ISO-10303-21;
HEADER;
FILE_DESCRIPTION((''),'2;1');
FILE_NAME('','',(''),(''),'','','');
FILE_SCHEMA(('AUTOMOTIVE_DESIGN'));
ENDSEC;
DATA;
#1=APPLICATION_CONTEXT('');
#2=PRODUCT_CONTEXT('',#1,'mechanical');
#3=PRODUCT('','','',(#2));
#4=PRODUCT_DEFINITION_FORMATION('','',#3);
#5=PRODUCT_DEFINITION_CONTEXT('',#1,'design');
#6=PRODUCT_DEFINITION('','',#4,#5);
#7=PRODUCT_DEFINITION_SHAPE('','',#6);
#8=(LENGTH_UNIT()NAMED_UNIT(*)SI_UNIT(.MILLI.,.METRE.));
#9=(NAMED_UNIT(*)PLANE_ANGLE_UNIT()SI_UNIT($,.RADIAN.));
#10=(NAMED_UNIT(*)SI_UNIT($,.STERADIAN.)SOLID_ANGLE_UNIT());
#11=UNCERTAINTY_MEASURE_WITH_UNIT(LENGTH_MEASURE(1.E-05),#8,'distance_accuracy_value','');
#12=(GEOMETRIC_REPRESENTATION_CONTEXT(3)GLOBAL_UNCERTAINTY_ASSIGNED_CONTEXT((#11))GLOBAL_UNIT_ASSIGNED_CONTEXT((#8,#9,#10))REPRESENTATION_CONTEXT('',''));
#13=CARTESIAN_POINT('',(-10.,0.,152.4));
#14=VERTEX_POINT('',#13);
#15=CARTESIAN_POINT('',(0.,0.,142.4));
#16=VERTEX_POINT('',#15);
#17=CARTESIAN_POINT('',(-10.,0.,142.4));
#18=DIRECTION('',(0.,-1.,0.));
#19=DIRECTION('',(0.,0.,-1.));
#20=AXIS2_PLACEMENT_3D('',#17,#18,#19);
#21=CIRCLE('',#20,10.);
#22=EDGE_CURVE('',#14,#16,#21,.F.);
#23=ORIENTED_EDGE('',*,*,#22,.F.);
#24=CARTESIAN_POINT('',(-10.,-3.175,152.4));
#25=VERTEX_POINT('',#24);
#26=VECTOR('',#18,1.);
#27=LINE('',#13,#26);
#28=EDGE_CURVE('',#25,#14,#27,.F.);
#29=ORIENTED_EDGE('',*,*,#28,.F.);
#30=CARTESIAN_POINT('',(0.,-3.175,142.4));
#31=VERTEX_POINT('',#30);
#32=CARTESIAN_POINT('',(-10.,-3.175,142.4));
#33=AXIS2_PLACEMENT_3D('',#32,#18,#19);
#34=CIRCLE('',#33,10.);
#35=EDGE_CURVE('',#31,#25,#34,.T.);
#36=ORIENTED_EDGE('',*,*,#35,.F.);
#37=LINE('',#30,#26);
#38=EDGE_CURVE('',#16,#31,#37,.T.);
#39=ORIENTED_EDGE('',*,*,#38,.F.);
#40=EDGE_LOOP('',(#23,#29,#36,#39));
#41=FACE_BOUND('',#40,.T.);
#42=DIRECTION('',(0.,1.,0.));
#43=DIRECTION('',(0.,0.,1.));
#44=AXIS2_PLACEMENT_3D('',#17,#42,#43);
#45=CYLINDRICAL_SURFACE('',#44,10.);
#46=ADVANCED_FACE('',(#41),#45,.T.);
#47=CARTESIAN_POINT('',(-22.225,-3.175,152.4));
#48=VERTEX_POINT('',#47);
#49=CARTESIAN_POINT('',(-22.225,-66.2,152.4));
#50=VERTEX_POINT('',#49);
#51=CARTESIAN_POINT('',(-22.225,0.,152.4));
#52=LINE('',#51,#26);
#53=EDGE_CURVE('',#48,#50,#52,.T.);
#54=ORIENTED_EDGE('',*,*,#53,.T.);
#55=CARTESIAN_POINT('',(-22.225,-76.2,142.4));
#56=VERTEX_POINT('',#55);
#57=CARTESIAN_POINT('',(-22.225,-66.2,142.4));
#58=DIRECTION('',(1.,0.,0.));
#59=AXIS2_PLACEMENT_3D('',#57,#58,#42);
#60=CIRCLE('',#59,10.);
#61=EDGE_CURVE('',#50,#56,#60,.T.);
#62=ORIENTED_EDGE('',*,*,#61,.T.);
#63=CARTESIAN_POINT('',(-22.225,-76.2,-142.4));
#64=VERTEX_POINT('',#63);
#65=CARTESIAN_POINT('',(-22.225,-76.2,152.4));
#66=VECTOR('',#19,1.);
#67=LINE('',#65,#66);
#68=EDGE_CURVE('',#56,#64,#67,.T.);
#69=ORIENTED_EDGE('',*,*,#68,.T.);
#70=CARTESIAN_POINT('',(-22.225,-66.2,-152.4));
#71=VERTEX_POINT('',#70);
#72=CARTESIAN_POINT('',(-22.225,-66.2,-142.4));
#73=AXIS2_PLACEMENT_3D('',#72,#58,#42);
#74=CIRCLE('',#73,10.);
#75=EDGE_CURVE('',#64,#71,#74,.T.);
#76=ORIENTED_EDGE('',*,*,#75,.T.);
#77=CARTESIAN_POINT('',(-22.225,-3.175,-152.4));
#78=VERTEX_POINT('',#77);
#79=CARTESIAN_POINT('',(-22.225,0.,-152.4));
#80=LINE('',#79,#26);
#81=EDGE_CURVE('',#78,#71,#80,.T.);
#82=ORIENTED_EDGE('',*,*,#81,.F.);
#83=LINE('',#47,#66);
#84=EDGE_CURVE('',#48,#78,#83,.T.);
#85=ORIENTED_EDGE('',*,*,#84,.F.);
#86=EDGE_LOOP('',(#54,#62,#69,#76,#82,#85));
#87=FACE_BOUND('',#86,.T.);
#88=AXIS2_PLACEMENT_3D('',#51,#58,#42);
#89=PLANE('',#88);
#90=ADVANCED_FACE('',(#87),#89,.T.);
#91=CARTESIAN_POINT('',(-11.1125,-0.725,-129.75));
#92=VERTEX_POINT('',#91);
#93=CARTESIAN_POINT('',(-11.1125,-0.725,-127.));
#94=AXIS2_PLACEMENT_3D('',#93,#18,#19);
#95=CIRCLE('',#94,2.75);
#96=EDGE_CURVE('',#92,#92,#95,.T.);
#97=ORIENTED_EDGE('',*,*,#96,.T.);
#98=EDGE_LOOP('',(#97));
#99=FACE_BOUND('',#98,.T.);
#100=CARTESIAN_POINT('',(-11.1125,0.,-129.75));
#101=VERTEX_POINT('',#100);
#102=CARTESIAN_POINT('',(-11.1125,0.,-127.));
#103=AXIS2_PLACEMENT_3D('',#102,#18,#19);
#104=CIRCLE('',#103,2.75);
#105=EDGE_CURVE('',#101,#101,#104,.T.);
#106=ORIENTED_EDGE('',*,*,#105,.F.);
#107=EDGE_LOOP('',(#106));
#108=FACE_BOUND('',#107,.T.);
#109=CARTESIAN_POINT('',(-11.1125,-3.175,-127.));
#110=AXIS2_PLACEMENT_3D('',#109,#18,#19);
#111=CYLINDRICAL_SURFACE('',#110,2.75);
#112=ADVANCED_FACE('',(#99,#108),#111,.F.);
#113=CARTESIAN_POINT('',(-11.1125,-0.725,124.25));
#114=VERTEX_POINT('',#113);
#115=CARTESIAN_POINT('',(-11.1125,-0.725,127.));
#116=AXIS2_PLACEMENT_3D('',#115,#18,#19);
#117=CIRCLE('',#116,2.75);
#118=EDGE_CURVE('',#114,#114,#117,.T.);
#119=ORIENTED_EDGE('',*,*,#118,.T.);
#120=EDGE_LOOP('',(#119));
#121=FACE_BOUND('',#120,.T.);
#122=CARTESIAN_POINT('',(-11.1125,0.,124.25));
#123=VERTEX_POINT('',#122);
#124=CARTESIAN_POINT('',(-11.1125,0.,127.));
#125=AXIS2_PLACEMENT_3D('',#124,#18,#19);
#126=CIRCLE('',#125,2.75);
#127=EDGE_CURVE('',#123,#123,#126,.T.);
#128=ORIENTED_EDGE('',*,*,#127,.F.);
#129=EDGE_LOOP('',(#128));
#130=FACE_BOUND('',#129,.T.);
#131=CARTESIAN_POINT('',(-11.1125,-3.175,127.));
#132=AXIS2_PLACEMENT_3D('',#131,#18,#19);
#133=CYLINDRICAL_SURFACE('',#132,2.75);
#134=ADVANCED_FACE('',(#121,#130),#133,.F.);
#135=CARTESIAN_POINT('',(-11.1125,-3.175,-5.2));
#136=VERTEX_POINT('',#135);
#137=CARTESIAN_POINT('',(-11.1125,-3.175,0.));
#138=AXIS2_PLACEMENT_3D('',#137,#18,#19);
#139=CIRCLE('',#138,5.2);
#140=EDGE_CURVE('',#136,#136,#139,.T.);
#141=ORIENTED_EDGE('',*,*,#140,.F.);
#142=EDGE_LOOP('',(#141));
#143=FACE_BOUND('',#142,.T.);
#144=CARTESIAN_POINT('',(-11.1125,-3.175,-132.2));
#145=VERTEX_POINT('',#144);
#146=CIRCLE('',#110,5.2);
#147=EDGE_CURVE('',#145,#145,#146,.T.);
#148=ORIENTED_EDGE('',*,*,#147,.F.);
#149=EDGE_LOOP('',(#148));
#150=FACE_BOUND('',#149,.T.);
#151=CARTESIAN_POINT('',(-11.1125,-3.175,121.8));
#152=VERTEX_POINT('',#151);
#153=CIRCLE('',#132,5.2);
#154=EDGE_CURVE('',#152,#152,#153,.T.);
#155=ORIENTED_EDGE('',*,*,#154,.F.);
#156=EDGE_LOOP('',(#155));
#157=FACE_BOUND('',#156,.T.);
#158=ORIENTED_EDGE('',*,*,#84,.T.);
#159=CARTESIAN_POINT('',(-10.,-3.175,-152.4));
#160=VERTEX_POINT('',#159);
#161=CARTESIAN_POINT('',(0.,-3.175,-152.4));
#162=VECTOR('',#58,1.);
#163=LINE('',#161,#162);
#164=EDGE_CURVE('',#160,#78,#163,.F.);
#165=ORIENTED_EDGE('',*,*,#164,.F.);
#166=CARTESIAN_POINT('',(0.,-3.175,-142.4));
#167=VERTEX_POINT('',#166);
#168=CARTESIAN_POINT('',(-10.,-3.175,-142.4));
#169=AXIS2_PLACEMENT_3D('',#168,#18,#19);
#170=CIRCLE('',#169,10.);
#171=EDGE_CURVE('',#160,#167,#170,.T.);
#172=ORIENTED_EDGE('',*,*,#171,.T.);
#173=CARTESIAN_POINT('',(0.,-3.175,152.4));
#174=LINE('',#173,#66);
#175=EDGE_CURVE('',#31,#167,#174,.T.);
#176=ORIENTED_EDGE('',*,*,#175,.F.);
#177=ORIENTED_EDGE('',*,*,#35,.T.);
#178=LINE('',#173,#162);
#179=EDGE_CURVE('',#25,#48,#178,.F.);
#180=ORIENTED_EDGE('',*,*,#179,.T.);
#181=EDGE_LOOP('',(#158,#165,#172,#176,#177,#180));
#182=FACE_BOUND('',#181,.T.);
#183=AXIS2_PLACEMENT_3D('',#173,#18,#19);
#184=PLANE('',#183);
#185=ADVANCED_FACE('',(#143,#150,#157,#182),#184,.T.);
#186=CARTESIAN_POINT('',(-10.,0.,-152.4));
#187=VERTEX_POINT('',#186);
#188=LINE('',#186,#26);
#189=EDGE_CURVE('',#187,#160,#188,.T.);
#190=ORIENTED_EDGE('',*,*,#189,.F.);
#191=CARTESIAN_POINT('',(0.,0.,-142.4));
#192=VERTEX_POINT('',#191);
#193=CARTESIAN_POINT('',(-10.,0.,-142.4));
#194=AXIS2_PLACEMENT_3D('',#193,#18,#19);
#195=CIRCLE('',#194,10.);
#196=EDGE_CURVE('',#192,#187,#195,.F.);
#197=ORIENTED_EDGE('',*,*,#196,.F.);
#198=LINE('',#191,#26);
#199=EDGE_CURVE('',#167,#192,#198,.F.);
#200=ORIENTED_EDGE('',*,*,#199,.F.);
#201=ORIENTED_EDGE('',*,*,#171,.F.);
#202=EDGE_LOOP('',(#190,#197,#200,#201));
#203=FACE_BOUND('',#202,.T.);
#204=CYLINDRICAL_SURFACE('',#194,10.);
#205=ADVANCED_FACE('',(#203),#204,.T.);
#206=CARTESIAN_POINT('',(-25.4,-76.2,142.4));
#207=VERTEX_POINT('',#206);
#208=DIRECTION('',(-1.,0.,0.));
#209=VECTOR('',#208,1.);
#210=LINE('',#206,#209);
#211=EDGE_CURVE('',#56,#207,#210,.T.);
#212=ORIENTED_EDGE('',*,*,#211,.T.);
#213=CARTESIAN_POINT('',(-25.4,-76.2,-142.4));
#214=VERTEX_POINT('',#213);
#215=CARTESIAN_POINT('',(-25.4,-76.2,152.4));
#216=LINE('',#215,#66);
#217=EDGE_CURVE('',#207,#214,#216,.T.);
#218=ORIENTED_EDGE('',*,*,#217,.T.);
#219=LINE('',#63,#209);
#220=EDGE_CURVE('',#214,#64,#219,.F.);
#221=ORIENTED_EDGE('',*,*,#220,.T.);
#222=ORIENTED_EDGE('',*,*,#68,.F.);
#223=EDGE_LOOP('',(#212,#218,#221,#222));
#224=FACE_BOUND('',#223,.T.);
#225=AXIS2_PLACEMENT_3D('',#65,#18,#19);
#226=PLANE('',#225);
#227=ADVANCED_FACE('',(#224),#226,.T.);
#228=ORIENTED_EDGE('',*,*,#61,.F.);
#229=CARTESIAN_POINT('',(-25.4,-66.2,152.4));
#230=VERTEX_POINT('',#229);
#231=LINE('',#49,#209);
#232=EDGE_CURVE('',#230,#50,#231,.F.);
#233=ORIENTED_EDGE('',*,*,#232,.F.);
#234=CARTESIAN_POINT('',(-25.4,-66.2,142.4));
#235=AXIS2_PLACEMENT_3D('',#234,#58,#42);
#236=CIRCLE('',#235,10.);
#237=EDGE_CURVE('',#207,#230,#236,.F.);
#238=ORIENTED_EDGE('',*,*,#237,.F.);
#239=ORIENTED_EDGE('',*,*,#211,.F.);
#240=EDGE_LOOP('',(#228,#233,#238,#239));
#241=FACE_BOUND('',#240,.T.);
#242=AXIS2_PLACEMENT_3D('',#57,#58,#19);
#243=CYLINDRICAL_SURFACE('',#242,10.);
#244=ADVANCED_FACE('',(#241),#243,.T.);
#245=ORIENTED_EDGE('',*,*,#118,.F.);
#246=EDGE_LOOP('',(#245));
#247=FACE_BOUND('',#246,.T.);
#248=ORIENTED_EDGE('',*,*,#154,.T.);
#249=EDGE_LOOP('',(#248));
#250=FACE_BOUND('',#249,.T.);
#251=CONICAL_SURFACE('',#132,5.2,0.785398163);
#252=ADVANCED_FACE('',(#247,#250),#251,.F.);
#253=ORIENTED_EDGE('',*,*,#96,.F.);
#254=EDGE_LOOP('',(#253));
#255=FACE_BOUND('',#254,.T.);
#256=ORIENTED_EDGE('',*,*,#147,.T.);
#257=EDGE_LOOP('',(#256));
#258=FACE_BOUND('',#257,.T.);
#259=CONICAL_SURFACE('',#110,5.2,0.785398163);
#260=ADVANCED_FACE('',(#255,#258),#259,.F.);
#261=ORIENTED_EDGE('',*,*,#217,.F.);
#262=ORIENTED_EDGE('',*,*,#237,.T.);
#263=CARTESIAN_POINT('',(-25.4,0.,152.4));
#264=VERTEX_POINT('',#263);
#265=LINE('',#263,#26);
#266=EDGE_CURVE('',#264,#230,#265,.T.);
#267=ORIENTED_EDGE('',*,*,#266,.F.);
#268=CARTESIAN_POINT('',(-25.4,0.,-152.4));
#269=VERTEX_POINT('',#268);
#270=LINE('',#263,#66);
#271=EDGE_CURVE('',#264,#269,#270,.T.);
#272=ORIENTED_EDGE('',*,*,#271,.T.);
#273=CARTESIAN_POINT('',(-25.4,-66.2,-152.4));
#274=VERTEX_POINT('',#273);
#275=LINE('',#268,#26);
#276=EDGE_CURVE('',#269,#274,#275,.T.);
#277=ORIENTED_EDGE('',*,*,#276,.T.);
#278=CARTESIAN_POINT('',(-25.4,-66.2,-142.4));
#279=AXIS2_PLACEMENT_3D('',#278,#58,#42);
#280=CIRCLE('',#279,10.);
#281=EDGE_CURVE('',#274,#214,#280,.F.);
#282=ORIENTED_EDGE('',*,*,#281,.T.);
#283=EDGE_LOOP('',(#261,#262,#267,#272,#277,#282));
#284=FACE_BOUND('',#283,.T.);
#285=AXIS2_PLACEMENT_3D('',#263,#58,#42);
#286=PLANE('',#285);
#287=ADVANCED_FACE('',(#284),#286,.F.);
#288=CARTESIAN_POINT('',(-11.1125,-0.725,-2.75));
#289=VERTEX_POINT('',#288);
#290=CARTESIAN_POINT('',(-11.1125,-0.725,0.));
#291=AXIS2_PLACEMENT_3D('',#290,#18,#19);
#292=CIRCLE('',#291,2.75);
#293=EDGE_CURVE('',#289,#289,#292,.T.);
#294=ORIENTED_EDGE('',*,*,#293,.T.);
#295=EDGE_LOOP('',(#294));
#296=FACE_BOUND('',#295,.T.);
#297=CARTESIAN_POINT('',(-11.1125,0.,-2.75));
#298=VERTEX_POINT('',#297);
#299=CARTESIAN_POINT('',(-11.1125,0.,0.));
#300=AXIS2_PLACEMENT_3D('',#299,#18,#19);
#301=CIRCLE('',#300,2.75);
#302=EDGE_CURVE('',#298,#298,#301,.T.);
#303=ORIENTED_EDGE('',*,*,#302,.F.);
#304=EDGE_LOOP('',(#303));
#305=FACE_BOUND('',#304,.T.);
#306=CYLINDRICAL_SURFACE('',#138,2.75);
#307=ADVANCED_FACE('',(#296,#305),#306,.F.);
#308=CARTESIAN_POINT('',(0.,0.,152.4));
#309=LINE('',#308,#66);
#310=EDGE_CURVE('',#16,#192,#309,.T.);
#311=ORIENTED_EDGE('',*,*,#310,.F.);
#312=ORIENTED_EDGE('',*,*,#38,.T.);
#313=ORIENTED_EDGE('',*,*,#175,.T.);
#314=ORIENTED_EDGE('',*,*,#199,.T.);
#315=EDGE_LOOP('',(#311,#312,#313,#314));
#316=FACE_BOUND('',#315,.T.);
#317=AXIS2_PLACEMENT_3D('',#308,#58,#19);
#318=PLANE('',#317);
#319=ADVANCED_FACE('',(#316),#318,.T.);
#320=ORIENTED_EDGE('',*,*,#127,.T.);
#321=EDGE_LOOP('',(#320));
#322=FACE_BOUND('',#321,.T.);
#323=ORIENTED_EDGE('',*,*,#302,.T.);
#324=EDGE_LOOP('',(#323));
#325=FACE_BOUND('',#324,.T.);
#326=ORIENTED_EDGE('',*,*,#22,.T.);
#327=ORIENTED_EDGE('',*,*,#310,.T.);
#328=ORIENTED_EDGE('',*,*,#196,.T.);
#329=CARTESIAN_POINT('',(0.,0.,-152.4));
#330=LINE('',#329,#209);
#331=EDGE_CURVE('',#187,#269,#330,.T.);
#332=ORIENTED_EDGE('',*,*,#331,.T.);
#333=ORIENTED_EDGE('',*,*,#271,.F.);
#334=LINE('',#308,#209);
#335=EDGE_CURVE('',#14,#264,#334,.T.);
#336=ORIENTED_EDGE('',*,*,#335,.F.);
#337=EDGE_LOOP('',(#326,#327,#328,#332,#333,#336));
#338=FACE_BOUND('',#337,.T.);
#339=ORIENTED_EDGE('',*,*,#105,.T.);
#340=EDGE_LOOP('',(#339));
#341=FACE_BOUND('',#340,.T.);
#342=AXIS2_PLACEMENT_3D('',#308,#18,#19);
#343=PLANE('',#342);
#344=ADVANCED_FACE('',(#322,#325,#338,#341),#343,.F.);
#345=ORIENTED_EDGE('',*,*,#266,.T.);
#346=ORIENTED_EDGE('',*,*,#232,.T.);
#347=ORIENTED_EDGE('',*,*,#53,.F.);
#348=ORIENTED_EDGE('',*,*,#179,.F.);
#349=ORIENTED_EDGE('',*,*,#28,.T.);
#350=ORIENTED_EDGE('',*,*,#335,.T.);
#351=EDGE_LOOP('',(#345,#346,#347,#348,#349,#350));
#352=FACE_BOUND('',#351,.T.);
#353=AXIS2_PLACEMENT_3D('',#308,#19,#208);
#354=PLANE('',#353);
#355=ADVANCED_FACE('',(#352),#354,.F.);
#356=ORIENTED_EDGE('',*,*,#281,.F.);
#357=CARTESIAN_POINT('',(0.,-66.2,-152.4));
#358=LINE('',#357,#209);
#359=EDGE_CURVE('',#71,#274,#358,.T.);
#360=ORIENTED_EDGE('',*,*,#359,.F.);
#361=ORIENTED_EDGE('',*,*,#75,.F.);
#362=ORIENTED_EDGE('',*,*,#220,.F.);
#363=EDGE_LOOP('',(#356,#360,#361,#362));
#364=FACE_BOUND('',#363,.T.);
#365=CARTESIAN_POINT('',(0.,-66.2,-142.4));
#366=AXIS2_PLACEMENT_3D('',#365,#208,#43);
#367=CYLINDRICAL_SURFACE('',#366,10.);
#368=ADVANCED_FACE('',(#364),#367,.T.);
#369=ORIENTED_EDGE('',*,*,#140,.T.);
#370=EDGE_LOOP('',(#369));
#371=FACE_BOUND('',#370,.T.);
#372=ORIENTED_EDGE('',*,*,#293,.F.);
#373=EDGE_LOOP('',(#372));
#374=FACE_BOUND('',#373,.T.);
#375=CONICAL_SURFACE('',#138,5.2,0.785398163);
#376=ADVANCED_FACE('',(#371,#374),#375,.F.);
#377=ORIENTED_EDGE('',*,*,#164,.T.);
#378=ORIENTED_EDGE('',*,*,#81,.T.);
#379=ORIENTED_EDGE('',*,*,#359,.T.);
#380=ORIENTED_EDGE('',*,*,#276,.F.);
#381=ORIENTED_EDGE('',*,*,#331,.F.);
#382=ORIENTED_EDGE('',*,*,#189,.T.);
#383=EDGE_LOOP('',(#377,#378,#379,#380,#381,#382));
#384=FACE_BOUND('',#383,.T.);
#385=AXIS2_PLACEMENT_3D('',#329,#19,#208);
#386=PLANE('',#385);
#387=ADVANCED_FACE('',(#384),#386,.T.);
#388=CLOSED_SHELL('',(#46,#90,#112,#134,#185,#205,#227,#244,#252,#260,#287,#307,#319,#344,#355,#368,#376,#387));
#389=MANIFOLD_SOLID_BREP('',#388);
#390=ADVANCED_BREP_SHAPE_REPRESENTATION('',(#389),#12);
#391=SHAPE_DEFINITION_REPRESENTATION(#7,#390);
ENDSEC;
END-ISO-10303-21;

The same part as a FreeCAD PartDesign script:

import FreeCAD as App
import Part
import Sketcher
Q = App.Units.Quantity


def edges_at(feature, points):
    """Names of the edges that pass closest to the given points."""
    edges = feature.Shape.Edges
    near = lambda p: min(range(len(edges)), key=lambda i: edges[i].distToShape(Part.Vertex(*p))[0])
    return sorted({f"Edge{near(p) + 1}" for p in points})

doc = App.newDocument("Part")
body = doc.addObject("PartDesign::Body", "Body")

# Sketch on XY plane
sketch1 = doc.addObject("Sketcher::SketchObject", "Sketch")
body.addObject(sketch1)
sketch1.AttachmentSupport = (doc.XY_Plane, [""])
sketch1.MapMode = "FlatFace"
sketch1.addGeometry([
    Part.LineSegment(App.Vector(0, 0, 0), App.Vector(-25.4, 0, 0)),  # 0
    Part.LineSegment(App.Vector(-25.4, 0, 0), App.Vector(-25.4, -76.2, 0)),  # 1
    Part.LineSegment(App.Vector(-25.4, -76.2, 0), App.Vector(-22.2, -76.2, 0)),  # 2
    Part.LineSegment(App.Vector(-22.2, -76.2, 0), App.Vector(-22.2, -3.2, 0)),  # 3
    Part.LineSegment(App.Vector(-22.2, -3.2, 0), App.Vector(0, -3.2, 0)),  # 4
    Part.LineSegment(App.Vector(0, -3.2, 0), App.Vector(0, 0, 0)),  # 5
], False)
sketch1.addConstraint([
    Sketcher.Constraint("Coincident", 0, 2, 1, 1),
    Sketcher.Constraint("Coincident", 1, 2, 2, 1),
    Sketcher.Constraint("Coincident", 2, 2, 3, 1),
    Sketcher.Constraint("Coincident", 3, 2, 4, 1),
    Sketcher.Constraint("Coincident", 4, 2, 5, 1),
    Sketcher.Constraint("Coincident", 5, 2, 0, 1),
    Sketcher.Constraint("Horizontal", 0),
    Sketcher.Constraint("Vertical", 1),
    Sketcher.Constraint("Horizontal", 2),
    Sketcher.Constraint("Vertical", 3),
    Sketcher.Constraint("Horizontal", 4),
    Sketcher.Constraint("Vertical", 5),
    Sketcher.Constraint("Coincident", 5, 2, -1, 1),
    Sketcher.Constraint("Equal", 2, 5),
    Sketcher.Constraint("DistanceX", 0, 2, 0, 1, Q("1 in")),
    Sketcher.Constraint("DistanceY", 1, 2, 1, 1, Q("3 in")),
    Sketcher.Constraint("DistanceX", 2, 1, 2, 2, Q("0.125 in")),
])
pad1 = doc.addObject("PartDesign::Pad", "Pad")
body.addObject(pad1)
pad1.Profile = sketch1
pad1.Length = Q("12 in")
pad1.Midplane = True

# Sketch on YZ plane
sketch2 = doc.addObject("Sketcher::SketchObject", "Sketch001")
body.addObject(sketch2)
sketch2.AttachmentSupport = (doc.YZ_Plane, [""])
sketch2.MapMode = "FlatFace"
sketch2.AttachmentOffset = App.Placement(App.Vector(0, 0, -0.4375 * 25.4), App.Rotation())
sketch2.addGeometry([
    Part.LineSegment(App.Vector(0, 127, 0), App.Vector(-3.2, 127, 0)),  # 0
    Part.LineSegment(App.Vector(-3.2, 127, 0), App.Vector(-3.2, 121.8, 0)),  # 1
    Part.LineSegment(App.Vector(-3.2, 121.8, 0), App.Vector(-0.7, 124.2, 0)),  # 2
    Part.LineSegment(App.Vector(-0.7, 124.2, 0), App.Vector(0, 124.2, 0)),  # 3
    Part.LineSegment(App.Vector(0, 124.2, 0), App.Vector(0, 127, 0)),  # 4
], False)
sketch2.addGeometry(Part.LineSegment(App.Vector(-3.2, 127, 0), App.Vector(0, 127, 0)), True)  # axis
sketch2.addConstraint([
    Sketcher.Constraint("Coincident", 0, 2, 1, 1),
    Sketcher.Constraint("Coincident", 1, 2, 2, 1),
    Sketcher.Constraint("Coincident", 2, 2, 3, 1),
    Sketcher.Constraint("Coincident", 3, 2, 4, 1),
    Sketcher.Constraint("Coincident", 4, 2, 0, 1),
    Sketcher.Constraint("Horizontal", 0),
    Sketcher.Constraint("Vertical", 1),
    Sketcher.Constraint("Horizontal", 3),
    Sketcher.Constraint("Vertical", 4),
    Sketcher.Constraint("Horizontal", 5),
    Sketcher.Constraint("Coincident", 5, 1, 0, 2),
    Sketcher.Constraint("PointOnObject", 3, 2, -2),
    Sketcher.Constraint("PointOnObject", 5, 2, -2),
    Sketcher.Constraint("DistanceY", -1, 1, 0, 2, Q("5 in")),
    Sketcher.Constraint("Angle", 2, Q("45 deg")),
    Sketcher.Constraint("DistanceX", 0, 2, 0, 1, Q("0.125 in")),
    Sketcher.Constraint("DistanceX", 3, 1, 3, 2, 0.725),
    Sketcher.Constraint("DistanceY", 1, 2, 1, 1, 5.2),
])
groove = doc.addObject("PartDesign::Groove", "Groove")
body.addObject(groove)
groove.Profile = sketch2
groove.ReferenceAxis = (sketch2, ["Axis0"])
groove.Angle = 360
doc.recompute()

linearpattern = doc.addObject("PartDesign::LinearPattern", "LinearPattern")
body.addObject(linearpattern)
linearpattern.Originals = [groove]
linearpattern.Direction = (doc.Z_Axis, [""])
linearpattern.Mode = "offset"
linearpattern.Offset = Q("5 in")
linearpattern.Occurrences = 2
linearpattern.Reversed = True
body.Tip = linearpattern
doc.recompute()

linearpattern2 = doc.addObject("PartDesign::LinearPattern", "LinearPattern001")
body.addObject(linearpattern2)
linearpattern2.Originals = [groove]
linearpattern2.Direction = (doc.Z_Axis, [""])
linearpattern2.Mode = "offset"
linearpattern2.Offset = Q("10 in")
linearpattern2.Occurrences = 2
linearpattern2.Reversed = True
body.Tip = linearpattern2
doc.recompute()

fillet = doc.addObject("PartDesign::Fillet", "Fillet")
body.addObject(fillet)
fillet.Base = (linearpattern2, edges_at(linearpattern2, [
    (0, -1.587, 152.4),
    (0, -1.587, -152.4),
    (-23.812, -76.2, -152.4),
    (-23.812, -76.2, 152.4),
]))
fillet.Radius = 10

doc.recompute()
